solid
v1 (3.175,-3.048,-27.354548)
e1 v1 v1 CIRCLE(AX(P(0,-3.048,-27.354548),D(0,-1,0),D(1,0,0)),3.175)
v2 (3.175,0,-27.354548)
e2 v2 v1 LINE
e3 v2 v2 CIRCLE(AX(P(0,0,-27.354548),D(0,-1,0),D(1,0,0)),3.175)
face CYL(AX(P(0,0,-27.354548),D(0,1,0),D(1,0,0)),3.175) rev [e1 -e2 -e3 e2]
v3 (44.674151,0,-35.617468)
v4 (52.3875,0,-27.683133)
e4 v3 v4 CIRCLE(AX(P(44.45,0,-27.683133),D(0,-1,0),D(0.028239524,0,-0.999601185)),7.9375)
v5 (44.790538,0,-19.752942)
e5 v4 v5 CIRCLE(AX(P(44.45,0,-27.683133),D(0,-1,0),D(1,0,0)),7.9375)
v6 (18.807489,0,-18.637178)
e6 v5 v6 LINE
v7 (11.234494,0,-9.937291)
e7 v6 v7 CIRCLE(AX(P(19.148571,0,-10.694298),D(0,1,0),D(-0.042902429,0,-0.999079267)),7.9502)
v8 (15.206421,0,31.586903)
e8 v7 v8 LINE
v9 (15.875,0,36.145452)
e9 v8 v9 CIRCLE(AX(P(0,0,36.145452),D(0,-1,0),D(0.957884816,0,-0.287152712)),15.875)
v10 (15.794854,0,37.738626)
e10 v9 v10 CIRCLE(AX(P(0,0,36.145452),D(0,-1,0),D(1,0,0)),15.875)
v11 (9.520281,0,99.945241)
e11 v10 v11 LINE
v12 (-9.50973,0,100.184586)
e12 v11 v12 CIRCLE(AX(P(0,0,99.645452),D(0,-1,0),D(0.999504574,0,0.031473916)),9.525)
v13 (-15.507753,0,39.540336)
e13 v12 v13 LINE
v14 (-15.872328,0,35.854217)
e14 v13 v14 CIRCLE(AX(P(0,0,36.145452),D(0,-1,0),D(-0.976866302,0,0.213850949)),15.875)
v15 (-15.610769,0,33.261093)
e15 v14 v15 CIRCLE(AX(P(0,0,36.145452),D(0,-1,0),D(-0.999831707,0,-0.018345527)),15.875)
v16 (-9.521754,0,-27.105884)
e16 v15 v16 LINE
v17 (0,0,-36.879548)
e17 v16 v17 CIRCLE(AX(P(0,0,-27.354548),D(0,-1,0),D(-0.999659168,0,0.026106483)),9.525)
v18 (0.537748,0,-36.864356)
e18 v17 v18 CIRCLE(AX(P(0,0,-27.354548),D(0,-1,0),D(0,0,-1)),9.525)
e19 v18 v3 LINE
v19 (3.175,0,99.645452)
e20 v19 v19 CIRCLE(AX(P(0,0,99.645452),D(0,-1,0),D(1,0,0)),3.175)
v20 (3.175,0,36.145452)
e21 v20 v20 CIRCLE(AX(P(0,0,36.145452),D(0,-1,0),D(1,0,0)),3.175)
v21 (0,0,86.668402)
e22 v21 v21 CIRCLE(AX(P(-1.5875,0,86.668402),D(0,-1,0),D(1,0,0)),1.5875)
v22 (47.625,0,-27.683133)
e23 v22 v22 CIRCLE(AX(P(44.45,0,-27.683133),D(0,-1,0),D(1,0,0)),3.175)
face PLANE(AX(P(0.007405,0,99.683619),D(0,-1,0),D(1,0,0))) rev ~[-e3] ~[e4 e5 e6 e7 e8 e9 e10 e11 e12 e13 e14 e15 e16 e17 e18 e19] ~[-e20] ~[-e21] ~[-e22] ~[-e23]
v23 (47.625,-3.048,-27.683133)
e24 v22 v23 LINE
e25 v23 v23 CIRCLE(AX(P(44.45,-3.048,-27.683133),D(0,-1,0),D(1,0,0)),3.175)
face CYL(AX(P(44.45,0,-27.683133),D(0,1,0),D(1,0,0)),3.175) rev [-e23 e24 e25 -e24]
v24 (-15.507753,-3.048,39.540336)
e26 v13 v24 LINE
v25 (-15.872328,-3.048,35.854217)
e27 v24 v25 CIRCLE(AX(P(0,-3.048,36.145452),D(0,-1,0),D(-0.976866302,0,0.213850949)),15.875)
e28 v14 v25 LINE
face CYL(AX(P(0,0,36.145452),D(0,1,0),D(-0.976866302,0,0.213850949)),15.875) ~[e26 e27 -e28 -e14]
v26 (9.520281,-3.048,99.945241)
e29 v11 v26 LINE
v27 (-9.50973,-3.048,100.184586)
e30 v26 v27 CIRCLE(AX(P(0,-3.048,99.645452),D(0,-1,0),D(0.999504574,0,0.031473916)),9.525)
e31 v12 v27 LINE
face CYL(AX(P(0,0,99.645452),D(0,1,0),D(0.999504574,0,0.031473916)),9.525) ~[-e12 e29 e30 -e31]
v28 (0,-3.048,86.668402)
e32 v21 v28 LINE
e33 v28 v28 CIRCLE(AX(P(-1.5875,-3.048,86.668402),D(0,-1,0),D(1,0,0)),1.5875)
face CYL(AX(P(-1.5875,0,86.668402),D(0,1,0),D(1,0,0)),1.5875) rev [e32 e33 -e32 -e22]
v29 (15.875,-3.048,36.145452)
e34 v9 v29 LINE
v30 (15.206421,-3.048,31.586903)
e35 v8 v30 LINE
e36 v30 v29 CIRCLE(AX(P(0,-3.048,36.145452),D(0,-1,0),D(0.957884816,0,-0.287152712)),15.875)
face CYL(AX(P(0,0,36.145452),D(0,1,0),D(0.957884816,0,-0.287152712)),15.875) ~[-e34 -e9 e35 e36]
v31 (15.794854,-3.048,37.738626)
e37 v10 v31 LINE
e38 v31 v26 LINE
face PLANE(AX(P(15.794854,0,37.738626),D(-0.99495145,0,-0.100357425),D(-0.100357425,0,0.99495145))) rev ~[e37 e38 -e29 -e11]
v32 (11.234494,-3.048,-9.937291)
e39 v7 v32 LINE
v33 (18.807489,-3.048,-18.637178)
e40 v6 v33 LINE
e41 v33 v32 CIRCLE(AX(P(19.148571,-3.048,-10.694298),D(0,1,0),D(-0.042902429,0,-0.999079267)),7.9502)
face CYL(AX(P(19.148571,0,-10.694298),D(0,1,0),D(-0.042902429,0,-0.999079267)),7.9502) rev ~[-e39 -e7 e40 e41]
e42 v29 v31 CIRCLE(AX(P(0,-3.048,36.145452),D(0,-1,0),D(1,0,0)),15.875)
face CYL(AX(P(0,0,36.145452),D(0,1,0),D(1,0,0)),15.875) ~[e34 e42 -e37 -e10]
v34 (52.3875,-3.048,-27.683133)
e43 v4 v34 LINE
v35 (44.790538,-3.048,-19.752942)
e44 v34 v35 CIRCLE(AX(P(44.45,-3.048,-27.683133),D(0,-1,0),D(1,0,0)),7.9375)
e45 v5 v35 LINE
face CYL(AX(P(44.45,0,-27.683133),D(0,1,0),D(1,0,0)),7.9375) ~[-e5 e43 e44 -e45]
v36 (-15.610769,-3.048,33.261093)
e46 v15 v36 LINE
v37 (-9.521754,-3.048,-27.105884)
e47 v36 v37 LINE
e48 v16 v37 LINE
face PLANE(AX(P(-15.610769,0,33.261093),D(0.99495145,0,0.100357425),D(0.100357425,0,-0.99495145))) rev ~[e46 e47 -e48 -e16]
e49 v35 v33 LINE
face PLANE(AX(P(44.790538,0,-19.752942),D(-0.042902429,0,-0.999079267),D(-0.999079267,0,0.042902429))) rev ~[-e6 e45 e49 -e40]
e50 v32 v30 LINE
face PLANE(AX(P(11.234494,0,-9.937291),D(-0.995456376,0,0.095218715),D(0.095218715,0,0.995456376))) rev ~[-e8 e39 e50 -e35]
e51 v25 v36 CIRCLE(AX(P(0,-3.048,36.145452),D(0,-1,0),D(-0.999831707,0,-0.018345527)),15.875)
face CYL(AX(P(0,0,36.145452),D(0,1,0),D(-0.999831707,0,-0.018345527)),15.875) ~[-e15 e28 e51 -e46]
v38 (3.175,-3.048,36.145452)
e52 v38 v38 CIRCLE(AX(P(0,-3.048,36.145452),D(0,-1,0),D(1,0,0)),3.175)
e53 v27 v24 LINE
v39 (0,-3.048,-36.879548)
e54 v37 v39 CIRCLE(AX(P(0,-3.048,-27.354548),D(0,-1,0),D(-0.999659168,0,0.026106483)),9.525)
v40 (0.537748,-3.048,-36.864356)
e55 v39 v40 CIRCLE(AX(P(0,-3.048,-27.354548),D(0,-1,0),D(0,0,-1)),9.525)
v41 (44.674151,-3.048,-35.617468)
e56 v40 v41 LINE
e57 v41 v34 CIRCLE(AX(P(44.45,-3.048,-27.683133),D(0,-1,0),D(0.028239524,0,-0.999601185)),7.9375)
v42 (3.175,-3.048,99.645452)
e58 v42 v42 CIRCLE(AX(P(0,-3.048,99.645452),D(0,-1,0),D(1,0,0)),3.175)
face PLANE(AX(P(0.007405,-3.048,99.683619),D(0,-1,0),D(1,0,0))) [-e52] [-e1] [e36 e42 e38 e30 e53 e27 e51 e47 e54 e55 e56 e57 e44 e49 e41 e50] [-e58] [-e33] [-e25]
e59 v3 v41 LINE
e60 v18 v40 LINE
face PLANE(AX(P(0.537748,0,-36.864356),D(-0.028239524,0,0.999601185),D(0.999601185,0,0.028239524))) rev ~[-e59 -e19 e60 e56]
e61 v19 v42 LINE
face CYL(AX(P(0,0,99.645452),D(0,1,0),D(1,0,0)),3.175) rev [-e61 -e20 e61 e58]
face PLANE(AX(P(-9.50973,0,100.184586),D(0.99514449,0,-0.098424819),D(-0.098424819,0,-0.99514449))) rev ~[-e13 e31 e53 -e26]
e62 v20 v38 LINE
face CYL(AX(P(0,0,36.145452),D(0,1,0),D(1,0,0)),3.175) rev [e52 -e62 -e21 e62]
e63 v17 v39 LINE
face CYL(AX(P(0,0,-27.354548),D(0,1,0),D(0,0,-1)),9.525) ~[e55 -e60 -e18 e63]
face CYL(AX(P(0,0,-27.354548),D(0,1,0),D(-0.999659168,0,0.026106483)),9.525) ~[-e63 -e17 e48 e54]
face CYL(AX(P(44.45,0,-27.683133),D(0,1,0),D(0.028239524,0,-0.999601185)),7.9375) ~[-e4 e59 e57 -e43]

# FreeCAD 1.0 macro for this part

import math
import FreeCAD as App
import Part
import Sketcher
Q = App.Units.Quantity

doc = App.newDocument("Part")
body = doc.addObject("PartDesign::Body", "Body")

sketch1 = body.newObject("Sketcher::SketchObject", "Sketch")
sketch1.AttachmentSupport = (doc.getObject("XZ_Plane"), [""])
sketch1.MapMode = "FlatFace"
sketch1.addGeometry(Part.ArcOfCircle(Part.Circle(App.Vector(0, 99.645452, 0), App.Vector(0, 0, 1), 9.525), math.radians(1.80362), math.radians(176.75521)), False)
sketch1.addGeometry(Part.LineSegment(App.Vector(-9.50973, 100.184586, 0), App.Vector(-15.507753, 39.540336, 0)), False)
sketch1.addGeometry(Part.ArcOfCircle(Part.Circle(App.Vector(0, 36.145452, 0), App.Vector(0, 0, 1), 15.875), math.radians(167.651876), math.radians(181.05118)), False)
sketch1.addGeometry(Part.ArcOfCircle(Part.Circle(App.Vector(0, 36.145452, 0), App.Vector(0, 0, 1), 15.875), math.radians(-178.94882), math.radians(-169.531674)), False)
sketch1.addGeometry(Part.LineSegment(App.Vector(-15.610769, 33.261093, 0), App.Vector(-9.521754, -27.105884, 0)), False)
sketch1.addGeometry(Part.ArcOfCircle(Part.Circle(App.Vector(0, -27.354548, 0), App.Vector(0, 0, 1), 9.525), math.radians(178.504039), math.radians(270)), False)
sketch1.addGeometry(Part.ArcOfCircle(Part.Circle(App.Vector(0, -27.354548, 0), App.Vector(0, 0, 1), 9.525), math.radians(-90), math.radians(-86.763559)), False)
sketch1.addGeometry(Part.LineSegment(App.Vector(0.537748, -36.864356, 0), App.Vector(44.674151, -35.617468, 0)), False)
sketch1.addGeometry(Part.ArcOfCircle(Part.Circle(App.Vector(44.45, -27.683133, 0), App.Vector(0, 0, 1), 7.9375), math.radians(-88.381779), math.radians(0)), False)
sketch1.addGeometry(Part.ArcOfCircle(Part.Circle(App.Vector(44.45, -27.683133, 0), App.Vector(0, 0, 1), 7.9375), math.radians(0), math.radians(87.541117)), False)
sketch1.addGeometry(Part.LineSegment(App.Vector(44.790538, -19.752942, 0), App.Vector(18.807489, -18.637178, 0)), False)
sketch1.addGeometry(Part.ArcOfCircle(Part.Circle(App.Vector(19.148571, -10.694298, 0), App.Vector(0, 0, 1), 7.9502), math.radians(174.536092), math.radians(267.541117)), False)
sketch1.addGeometry(Part.LineSegment(App.Vector(11.234494, -9.93729, 0), App.Vector(15.206421, 31.586903, 0)), False)
sketch1.addGeometry(Part.ArcOfCircle(Part.Circle(App.Vector(0, 36.145452, 0), App.Vector(0, 0, 1), 15.875), math.radians(-16.68757), math.radians(0)), False)
sketch1.addGeometry(Part.ArcOfCircle(Part.Circle(App.Vector(0, 36.145452, 0), App.Vector(0, 0, 1), 15.875), math.radians(0), math.radians(5.759753)), False)
sketch1.addGeometry(Part.LineSegment(App.Vector(15.794854, 37.738626, 0), App.Vector(9.520281, 99.945241, 0)), False)
sketch1.addGeometry(Part.Circle(App.Vector(0, -27.354548, 0), App.Vector(0, 0, 1), 3.175), False)
sketch1.addGeometry(Part.Circle(App.Vector(44.45, -27.683133, 0), App.Vector(0, 0, 1), 3.175), False)
sketch1.addGeometry(Part.Circle(App.Vector(0, 36.145452, 0), App.Vector(0, 0, 1), 3.175), False)
sketch1.addGeometry(Part.Circle(App.Vector(-1.5875, 86.668402, 0), App.Vector(0, 0, 1), 1.5875), False)
sketch1.addGeometry(Part.Circle(App.Vector(0, 99.645452, 0), App.Vector(0, 0, 1), 3.175), False)
sketch1.addConstraint(Sketcher.Constraint("Coincident", 0, 2, 1, 1))
sketch1.addConstraint(Sketcher.Constraint("Coincident", 1, 2, 2, 1))
sketch1.addConstraint(Sketcher.Constraint("Tangent", 2, 2, 3, 1))
sketch1.addConstraint(Sketcher.Constraint("Coincident", 3, 2, 4, 1))
sketch1.addConstraint(Sketcher.Constraint("Coincident", 4, 2, 5, 1))
sketch1.addConstraint(Sketcher.Constraint("Tangent", 5, 2, 6, 1))
sketch1.addConstraint(Sketcher.Constraint("Coincident", 6, 2, 7, 1))
sketch1.addConstraint(Sketcher.Constraint("Tangent", 7, 2, 8, 1))
sketch1.addConstraint(Sketcher.Constraint("Tangent", 8, 2, 9, 1))
sketch1.addConstraint(Sketcher.Constraint("Tangent", 9, 2, 10, 1))
sketch1.addConstraint(Sketcher.Constraint("Tangent", 10, 2, 11, 2))
sketch1.addConstraint(Sketcher.Constraint("Tangent", 11, 1, 12, 1))
sketch1.addConstraint(Sketcher.Constraint("Coincident", 12, 2, 13, 1))
sketch1.addConstraint(Sketcher.Constraint("Tangent", 13, 2, 14, 1))
sketch1.addConstraint(Sketcher.Constraint("Tangent", 14, 2, 15, 1))
sketch1.addConstraint(Sketcher.Constraint("Coincident", 15, 2, 0, 1))
sketch1.addConstraint(Sketcher.Constraint("Coincident", 13, 3, 2, 3))
sketch1.addConstraint(Sketcher.Constraint("Coincident", 16, 3, 5, 3))
sketch1.addConstraint(Sketcher.Constraint("Coincident", 17, 3, 8, 3))
sketch1.addConstraint(Sketcher.Constraint("Coincident", 18, 3, 2, 3))
sketch1.addConstraint(Sketcher.Constraint("Coincident", 20, 3, 0, 3))
sketch1.addConstraint(Sketcher.Constraint("Equal", 2, 3))
sketch1.addConstraint(Sketcher.Constraint("Equal", 0, 5))
sketch1.addConstraint(Sketcher.Constraint("Equal", 5, 6))
sketch1.addConstraint(Sketcher.Constraint("Equal", 8, 9))
sketch1.addConstraint(Sketcher.Constraint("Equal", 3, 13))
sketch1.addConstraint(Sketcher.Constraint("Equal", 13, 14))
sketch1.addConstraint(Sketcher.Constraint("Equal", 16, 17))
sketch1.addConstraint(Sketcher.Constraint("Equal", 17, 18))
sketch1.addConstraint(Sketcher.Constraint("Equal", 18, 20))
sketch1.addConstraint(Sketcher.Constraint("PointOnObject", 0, 3, -2))
sketch1.addConstraint(Sketcher.Constraint("PointOnObject", 2, 3, -2))
sketch1.addConstraint(Sketcher.Constraint("PointOnObject", 5, 3, -2))
sketch1.addConstraint(Sketcher.Constraint("PointOnObject", 5, 2, -2))
sketch1.addConstraint(Sketcher.Constraint("Parallel", 4, 15))
sketch1.addConstraint(Sketcher.Constraint("Horizontal", 17, 3, 8, 2))
sketch1.addConstraint(Sketcher.Constraint("Horizontal", 18, 3, 13, 2))
sketch1.addConstraint(Sketcher.Constraint("Diameter", 16, Q("0.25 in")))
sketch1.addConstraint(Sketcher.Constraint("Diameter", 19, Q("0.125 in")))
sketch1.addConstraint(Sketcher.Constraint("Radius", 0, Q("0.375 in")))
sketch1.addConstraint(Sketcher.Constraint("Radius", 2, Q("0.625 in")))
sketch1.addConstraint(Sketcher.Constraint("Radius", 8, Q("0.3125 in")))
sketch1.addConstraint(Sketcher.Constraint("Radius", 11, Q("0.313 in")))
sketch1.addConstraint(Sketcher.Constraint("DistanceY", 5, 3, 0, 3, Q("5 in")))
sketch1.addConstraint(Sketcher.Constraint("DistanceY", 2, 3, 0, 3, Q("2.5 in")))
sketch1.addConstraint(Sketcher.Constraint("DistanceX", -1, 1, 8, 3, Q("1.75 in")))
sketch1.addConstraint(Sketcher.Constraint("DistanceX", 19, 3, -1, 1, Q("0.0625 in")))
sketch1.addConstraint(Sketcher.Constraint("DistanceY", 11, 3, -1, 1, Q("10.694298 mm")))
sketch1.addConstraint(Sketcher.Constraint("DistanceY", -1, 1, 19, 3, Q("86.668402 mm")))
sketch1.addConstraint(Sketcher.Constraint("DistanceX", 4, 2, 6, 2, Q("10.059502 mm")))
sketch1.addConstraint(Sketcher.Constraint("Distance", 4, Q("60.673288 mm")))
sketch1.addConstraint(Sketcher.Constraint("Distance", 15, Q("62.522262 mm")))
sketch1.addConstraint(Sketcher.Constraint("DistanceX", -1, 1, 11, 3, Q("19.148571 mm")))
sketch1.addConstraint(Sketcher.Constraint("DistanceX", 0, 2, -1, 1, Q("9.50973 mm")))
sketch1.addConstraint(Sketcher.Constraint("DistanceX", 2, 2, -1, 1, Q("15.872328 mm")))
sketch1.addConstraint(Sketcher.Constraint("DistanceX", -1, 1, 7, 2, Q("44.674151 mm")))
sketch1.addConstraint(Sketcher.Constraint("DistanceX", -1, 1, 9, 2, Q("44.790538 mm")))
sketch1.addConstraint(Sketcher.Constraint("DistanceY", 11, 1, -1, 1, Q("9.93729 mm")))
sketch1.addConstraint(Sketcher.Constraint("DistanceY", 2, 2, 1, 2, Q("3.686119 mm")))
pad1 = body.newObject("PartDesign::Pad", "Pad")
pad1.Profile = sketch1
pad1.Length = Q("0.12 in")

doc.recompute()
